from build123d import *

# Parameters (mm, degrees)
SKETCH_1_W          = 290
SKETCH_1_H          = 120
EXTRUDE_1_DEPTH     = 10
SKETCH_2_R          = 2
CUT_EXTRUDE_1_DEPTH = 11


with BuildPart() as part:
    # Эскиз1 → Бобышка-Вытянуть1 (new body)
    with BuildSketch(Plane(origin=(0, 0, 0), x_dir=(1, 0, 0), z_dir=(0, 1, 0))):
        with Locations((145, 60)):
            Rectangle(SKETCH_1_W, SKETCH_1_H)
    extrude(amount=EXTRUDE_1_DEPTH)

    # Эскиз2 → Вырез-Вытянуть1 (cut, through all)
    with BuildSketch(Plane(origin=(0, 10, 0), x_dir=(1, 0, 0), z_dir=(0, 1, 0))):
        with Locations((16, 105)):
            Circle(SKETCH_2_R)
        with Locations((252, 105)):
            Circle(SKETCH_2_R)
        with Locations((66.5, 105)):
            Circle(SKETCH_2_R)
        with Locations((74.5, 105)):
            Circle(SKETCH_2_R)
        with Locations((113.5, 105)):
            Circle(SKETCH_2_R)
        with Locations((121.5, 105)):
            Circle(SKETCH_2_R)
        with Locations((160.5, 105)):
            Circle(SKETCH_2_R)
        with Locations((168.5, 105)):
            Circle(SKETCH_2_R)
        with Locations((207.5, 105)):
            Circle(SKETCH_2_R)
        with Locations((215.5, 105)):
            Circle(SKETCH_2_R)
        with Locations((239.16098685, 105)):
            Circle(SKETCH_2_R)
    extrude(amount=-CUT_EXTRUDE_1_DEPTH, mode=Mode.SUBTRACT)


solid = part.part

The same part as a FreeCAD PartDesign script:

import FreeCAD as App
import Part
import Sketcher

V = App.Vector
Q = App.Units.Quantity

doc = App.newDocument("Part")
params = doc.addObject("Spreadsheet::Sheet", "Params")
for row, (alias, value) in enumerate([
    ("sketch1_width", "290 mm"),
    ("sketch1_height", "120 mm"),
    ("pad1_length", "10 mm"),
    ("sketch2_diameter", "4 mm"),
], start=1):
    params.set(f"A{row}", alias)
    params.set(f"B{row}", "=" + value)
    params.setAlias(f"B{row}", alias)

body = doc.addObject("PartDesign::Body", "Body")

sketch1 = body.newObject("Sketcher::SketchObject", "Sketch")
sketch1.AttachmentSupport = (doc.getObject("XZ_Plane"), [""])
sketch1.MapMode = "FlatFace"
sketch1.addGeometry([
    Part.LineSegment(V(0, -120, 0), V(0, 0, 0)),
    Part.LineSegment(V(0, 0, 0), V(290, 0, 0)),
    Part.LineSegment(V(290, 0, 0), V(290, -120, 0)),
    Part.LineSegment(V(290, -120, 0), V(0, -120, 0)),
], False)
sketch1.addConstraint([
    Sketcher.Constraint("Coincident", 0, 2, 1, 1),
    Sketcher.Constraint("Coincident", 1, 2, 2, 1),
    Sketcher.Constraint("Coincident", 2, 2, 3, 1),
    Sketcher.Constraint("Coincident", 3, 2, 0, 1),
    Sketcher.Constraint("Vertical", 0),
    Sketcher.Constraint("Horizontal", 1),
    Sketcher.Constraint("Vertical", 2),
    Sketcher.Constraint("Horizontal", 3),
    Sketcher.Constraint("Coincident", 0, 2, -1, 1),
    Sketcher.Constraint("DistanceX", 1, 1, 1, 2, Q("290 mm")),
    Sketcher.Constraint("DistanceY", 0, 1, 0, 2, Q("120 mm")),
])
sketch1.setExpression("Constraints[9]", "Params.sketch1_width")
sketch1.setExpression("Constraints[10]", "Params.sketch1_height")
pad1 = body.newObject("PartDesign::Pad", "Pad")
pad1.Profile = sketch1
pad1.setExpression("Length", "Params.pad1_length")
pad1.Reversed = True

sketch2 = body.newObject("Sketcher::SketchObject", "Sketch001")
sketch2.AttachmentSupport = (doc.getObject("XZ_Plane"), [""])
sketch2.MapMode = "FlatFace"
sketch2.AttachmentOffset = App.Placement(V(0, 0, -10), App.Rotation())
sketch2.addGeometry([
    Part.Circle(V(16, -105, 0), V(0, 0, 1), 2),
    Part.Circle(V(252, -105, 0), V(0, 0, 1), 2),
    Part.Circle(V(66.5, -105, 0), V(0, 0, 1), 2),
    Part.Circle(V(74.5, -105, 0), V(0, 0, 1), 2),
    Part.Circle(V(113.5, -105, 0), V(0, 0, 1), 2),
    Part.Circle(V(121.5, -105, 0), V(0, 0, 1), 2),
    Part.Circle(V(160.5, -105, 0), V(0, 0, 1), 2),
    Part.Circle(V(168.5, -105, 0), V(0, 0, 1), 2),
    Part.Circle(V(207.5, -105, 0), V(0, 0, 1), 2),
    Part.Circle(V(215.5, -105, 0), V(0, 0, 1), 2),
    Part.Circle(V(239.160987, -105, 0), V(0, 0, 1), 2),
], False)
sketch2.addConstraint([
    Sketcher.Constraint("Equal", 0, 1),
    Sketcher.Constraint("Equal", 1, 2),
    Sketcher.Constraint("Equal", 2, 3),
    Sketcher.Constraint("Equal", 3, 4),
    Sketcher.Constraint("Equal", 4, 5),
    Sketcher.Constraint("Equal", 5, 6),
    Sketcher.Constraint("Equal", 6, 7),
    Sketcher.Constraint("Equal", 7, 8),
    Sketcher.Constraint("Equal", 8, 9),
    Sketcher.Constraint("Equal", 9, 10),
    Sketcher.Constraint("Horizontal", 0, 3, 1, 3),
    Sketcher.Constraint("Horizontal", 1, 3, 2, 3),
    Sketcher.Constraint("Horizontal", 2, 3, 3, 3),
    Sketcher.Constraint("Horizontal", 3, 3, 4, 3),
    Sketcher.Constraint("Horizontal", 4, 3, 5, 3),
    Sketcher.Constraint("Horizontal", 5, 3, 6, 3),
    Sketcher.Constraint("Horizontal", 6, 3, 7, 3),
    Sketcher.Constraint("Horizontal", 7, 3, 8, 3),
    Sketcher.Constraint("Horizontal", 8, 3, 9, 3),
    Sketcher.Constraint("Horizontal", 9, 3, 10, 3),
    Sketcher.Constraint("Diameter", 0, Q("4 mm")),
    Sketcher.Constraint("DistanceX", -1, 1, 0, 3, Q("16 mm")),
    Sketcher.Constraint("DistanceY", 0, 3, -1, 1, Q("105 mm")),
    Sketcher.Constraint("DistanceX", -1, 1, 1, 3, Q("252 mm")),
    Sketcher.Constraint("DistanceX", 2, 3, 3, 3, Q("8 mm")),
    Sketcher.Constraint("DistanceX", 3, 3, 4, 3, Q("39 mm")),
    Sketcher.Constraint("DistanceX", 4, 3, 5, 3, Q("8 mm")),
    Sketcher.Constraint("DistanceX", 5, 3, 6, 3, Q("39 mm")),
    Sketcher.Constraint("DistanceX", 6, 3, 7, 3, Q("8 mm")),
    Sketcher.Constraint("DistanceX", 7, 3, 8, 3, Q("39 mm")),
    Sketcher.Constraint("DistanceX", 8, 3, 9, 3, Q("8 mm")),
    Sketcher.Constraint("DistanceX", -1, 1, 2, 3, Q("66.5 mm")),
    Sketcher.Constraint("DistanceX", -1, 1, 10, 3, Q("239.160987 mm")),
])
sketch2.setExpression("Constraints[20]", "Params.sketch2_diameter")
pocket1 = body.newObject("PartDesign::Pocket", "Pocket")
pocket1.Profile = sketch2
pocket1.Type = "ThroughAll"
pocket1.Reversed = True

doc.recompute()
